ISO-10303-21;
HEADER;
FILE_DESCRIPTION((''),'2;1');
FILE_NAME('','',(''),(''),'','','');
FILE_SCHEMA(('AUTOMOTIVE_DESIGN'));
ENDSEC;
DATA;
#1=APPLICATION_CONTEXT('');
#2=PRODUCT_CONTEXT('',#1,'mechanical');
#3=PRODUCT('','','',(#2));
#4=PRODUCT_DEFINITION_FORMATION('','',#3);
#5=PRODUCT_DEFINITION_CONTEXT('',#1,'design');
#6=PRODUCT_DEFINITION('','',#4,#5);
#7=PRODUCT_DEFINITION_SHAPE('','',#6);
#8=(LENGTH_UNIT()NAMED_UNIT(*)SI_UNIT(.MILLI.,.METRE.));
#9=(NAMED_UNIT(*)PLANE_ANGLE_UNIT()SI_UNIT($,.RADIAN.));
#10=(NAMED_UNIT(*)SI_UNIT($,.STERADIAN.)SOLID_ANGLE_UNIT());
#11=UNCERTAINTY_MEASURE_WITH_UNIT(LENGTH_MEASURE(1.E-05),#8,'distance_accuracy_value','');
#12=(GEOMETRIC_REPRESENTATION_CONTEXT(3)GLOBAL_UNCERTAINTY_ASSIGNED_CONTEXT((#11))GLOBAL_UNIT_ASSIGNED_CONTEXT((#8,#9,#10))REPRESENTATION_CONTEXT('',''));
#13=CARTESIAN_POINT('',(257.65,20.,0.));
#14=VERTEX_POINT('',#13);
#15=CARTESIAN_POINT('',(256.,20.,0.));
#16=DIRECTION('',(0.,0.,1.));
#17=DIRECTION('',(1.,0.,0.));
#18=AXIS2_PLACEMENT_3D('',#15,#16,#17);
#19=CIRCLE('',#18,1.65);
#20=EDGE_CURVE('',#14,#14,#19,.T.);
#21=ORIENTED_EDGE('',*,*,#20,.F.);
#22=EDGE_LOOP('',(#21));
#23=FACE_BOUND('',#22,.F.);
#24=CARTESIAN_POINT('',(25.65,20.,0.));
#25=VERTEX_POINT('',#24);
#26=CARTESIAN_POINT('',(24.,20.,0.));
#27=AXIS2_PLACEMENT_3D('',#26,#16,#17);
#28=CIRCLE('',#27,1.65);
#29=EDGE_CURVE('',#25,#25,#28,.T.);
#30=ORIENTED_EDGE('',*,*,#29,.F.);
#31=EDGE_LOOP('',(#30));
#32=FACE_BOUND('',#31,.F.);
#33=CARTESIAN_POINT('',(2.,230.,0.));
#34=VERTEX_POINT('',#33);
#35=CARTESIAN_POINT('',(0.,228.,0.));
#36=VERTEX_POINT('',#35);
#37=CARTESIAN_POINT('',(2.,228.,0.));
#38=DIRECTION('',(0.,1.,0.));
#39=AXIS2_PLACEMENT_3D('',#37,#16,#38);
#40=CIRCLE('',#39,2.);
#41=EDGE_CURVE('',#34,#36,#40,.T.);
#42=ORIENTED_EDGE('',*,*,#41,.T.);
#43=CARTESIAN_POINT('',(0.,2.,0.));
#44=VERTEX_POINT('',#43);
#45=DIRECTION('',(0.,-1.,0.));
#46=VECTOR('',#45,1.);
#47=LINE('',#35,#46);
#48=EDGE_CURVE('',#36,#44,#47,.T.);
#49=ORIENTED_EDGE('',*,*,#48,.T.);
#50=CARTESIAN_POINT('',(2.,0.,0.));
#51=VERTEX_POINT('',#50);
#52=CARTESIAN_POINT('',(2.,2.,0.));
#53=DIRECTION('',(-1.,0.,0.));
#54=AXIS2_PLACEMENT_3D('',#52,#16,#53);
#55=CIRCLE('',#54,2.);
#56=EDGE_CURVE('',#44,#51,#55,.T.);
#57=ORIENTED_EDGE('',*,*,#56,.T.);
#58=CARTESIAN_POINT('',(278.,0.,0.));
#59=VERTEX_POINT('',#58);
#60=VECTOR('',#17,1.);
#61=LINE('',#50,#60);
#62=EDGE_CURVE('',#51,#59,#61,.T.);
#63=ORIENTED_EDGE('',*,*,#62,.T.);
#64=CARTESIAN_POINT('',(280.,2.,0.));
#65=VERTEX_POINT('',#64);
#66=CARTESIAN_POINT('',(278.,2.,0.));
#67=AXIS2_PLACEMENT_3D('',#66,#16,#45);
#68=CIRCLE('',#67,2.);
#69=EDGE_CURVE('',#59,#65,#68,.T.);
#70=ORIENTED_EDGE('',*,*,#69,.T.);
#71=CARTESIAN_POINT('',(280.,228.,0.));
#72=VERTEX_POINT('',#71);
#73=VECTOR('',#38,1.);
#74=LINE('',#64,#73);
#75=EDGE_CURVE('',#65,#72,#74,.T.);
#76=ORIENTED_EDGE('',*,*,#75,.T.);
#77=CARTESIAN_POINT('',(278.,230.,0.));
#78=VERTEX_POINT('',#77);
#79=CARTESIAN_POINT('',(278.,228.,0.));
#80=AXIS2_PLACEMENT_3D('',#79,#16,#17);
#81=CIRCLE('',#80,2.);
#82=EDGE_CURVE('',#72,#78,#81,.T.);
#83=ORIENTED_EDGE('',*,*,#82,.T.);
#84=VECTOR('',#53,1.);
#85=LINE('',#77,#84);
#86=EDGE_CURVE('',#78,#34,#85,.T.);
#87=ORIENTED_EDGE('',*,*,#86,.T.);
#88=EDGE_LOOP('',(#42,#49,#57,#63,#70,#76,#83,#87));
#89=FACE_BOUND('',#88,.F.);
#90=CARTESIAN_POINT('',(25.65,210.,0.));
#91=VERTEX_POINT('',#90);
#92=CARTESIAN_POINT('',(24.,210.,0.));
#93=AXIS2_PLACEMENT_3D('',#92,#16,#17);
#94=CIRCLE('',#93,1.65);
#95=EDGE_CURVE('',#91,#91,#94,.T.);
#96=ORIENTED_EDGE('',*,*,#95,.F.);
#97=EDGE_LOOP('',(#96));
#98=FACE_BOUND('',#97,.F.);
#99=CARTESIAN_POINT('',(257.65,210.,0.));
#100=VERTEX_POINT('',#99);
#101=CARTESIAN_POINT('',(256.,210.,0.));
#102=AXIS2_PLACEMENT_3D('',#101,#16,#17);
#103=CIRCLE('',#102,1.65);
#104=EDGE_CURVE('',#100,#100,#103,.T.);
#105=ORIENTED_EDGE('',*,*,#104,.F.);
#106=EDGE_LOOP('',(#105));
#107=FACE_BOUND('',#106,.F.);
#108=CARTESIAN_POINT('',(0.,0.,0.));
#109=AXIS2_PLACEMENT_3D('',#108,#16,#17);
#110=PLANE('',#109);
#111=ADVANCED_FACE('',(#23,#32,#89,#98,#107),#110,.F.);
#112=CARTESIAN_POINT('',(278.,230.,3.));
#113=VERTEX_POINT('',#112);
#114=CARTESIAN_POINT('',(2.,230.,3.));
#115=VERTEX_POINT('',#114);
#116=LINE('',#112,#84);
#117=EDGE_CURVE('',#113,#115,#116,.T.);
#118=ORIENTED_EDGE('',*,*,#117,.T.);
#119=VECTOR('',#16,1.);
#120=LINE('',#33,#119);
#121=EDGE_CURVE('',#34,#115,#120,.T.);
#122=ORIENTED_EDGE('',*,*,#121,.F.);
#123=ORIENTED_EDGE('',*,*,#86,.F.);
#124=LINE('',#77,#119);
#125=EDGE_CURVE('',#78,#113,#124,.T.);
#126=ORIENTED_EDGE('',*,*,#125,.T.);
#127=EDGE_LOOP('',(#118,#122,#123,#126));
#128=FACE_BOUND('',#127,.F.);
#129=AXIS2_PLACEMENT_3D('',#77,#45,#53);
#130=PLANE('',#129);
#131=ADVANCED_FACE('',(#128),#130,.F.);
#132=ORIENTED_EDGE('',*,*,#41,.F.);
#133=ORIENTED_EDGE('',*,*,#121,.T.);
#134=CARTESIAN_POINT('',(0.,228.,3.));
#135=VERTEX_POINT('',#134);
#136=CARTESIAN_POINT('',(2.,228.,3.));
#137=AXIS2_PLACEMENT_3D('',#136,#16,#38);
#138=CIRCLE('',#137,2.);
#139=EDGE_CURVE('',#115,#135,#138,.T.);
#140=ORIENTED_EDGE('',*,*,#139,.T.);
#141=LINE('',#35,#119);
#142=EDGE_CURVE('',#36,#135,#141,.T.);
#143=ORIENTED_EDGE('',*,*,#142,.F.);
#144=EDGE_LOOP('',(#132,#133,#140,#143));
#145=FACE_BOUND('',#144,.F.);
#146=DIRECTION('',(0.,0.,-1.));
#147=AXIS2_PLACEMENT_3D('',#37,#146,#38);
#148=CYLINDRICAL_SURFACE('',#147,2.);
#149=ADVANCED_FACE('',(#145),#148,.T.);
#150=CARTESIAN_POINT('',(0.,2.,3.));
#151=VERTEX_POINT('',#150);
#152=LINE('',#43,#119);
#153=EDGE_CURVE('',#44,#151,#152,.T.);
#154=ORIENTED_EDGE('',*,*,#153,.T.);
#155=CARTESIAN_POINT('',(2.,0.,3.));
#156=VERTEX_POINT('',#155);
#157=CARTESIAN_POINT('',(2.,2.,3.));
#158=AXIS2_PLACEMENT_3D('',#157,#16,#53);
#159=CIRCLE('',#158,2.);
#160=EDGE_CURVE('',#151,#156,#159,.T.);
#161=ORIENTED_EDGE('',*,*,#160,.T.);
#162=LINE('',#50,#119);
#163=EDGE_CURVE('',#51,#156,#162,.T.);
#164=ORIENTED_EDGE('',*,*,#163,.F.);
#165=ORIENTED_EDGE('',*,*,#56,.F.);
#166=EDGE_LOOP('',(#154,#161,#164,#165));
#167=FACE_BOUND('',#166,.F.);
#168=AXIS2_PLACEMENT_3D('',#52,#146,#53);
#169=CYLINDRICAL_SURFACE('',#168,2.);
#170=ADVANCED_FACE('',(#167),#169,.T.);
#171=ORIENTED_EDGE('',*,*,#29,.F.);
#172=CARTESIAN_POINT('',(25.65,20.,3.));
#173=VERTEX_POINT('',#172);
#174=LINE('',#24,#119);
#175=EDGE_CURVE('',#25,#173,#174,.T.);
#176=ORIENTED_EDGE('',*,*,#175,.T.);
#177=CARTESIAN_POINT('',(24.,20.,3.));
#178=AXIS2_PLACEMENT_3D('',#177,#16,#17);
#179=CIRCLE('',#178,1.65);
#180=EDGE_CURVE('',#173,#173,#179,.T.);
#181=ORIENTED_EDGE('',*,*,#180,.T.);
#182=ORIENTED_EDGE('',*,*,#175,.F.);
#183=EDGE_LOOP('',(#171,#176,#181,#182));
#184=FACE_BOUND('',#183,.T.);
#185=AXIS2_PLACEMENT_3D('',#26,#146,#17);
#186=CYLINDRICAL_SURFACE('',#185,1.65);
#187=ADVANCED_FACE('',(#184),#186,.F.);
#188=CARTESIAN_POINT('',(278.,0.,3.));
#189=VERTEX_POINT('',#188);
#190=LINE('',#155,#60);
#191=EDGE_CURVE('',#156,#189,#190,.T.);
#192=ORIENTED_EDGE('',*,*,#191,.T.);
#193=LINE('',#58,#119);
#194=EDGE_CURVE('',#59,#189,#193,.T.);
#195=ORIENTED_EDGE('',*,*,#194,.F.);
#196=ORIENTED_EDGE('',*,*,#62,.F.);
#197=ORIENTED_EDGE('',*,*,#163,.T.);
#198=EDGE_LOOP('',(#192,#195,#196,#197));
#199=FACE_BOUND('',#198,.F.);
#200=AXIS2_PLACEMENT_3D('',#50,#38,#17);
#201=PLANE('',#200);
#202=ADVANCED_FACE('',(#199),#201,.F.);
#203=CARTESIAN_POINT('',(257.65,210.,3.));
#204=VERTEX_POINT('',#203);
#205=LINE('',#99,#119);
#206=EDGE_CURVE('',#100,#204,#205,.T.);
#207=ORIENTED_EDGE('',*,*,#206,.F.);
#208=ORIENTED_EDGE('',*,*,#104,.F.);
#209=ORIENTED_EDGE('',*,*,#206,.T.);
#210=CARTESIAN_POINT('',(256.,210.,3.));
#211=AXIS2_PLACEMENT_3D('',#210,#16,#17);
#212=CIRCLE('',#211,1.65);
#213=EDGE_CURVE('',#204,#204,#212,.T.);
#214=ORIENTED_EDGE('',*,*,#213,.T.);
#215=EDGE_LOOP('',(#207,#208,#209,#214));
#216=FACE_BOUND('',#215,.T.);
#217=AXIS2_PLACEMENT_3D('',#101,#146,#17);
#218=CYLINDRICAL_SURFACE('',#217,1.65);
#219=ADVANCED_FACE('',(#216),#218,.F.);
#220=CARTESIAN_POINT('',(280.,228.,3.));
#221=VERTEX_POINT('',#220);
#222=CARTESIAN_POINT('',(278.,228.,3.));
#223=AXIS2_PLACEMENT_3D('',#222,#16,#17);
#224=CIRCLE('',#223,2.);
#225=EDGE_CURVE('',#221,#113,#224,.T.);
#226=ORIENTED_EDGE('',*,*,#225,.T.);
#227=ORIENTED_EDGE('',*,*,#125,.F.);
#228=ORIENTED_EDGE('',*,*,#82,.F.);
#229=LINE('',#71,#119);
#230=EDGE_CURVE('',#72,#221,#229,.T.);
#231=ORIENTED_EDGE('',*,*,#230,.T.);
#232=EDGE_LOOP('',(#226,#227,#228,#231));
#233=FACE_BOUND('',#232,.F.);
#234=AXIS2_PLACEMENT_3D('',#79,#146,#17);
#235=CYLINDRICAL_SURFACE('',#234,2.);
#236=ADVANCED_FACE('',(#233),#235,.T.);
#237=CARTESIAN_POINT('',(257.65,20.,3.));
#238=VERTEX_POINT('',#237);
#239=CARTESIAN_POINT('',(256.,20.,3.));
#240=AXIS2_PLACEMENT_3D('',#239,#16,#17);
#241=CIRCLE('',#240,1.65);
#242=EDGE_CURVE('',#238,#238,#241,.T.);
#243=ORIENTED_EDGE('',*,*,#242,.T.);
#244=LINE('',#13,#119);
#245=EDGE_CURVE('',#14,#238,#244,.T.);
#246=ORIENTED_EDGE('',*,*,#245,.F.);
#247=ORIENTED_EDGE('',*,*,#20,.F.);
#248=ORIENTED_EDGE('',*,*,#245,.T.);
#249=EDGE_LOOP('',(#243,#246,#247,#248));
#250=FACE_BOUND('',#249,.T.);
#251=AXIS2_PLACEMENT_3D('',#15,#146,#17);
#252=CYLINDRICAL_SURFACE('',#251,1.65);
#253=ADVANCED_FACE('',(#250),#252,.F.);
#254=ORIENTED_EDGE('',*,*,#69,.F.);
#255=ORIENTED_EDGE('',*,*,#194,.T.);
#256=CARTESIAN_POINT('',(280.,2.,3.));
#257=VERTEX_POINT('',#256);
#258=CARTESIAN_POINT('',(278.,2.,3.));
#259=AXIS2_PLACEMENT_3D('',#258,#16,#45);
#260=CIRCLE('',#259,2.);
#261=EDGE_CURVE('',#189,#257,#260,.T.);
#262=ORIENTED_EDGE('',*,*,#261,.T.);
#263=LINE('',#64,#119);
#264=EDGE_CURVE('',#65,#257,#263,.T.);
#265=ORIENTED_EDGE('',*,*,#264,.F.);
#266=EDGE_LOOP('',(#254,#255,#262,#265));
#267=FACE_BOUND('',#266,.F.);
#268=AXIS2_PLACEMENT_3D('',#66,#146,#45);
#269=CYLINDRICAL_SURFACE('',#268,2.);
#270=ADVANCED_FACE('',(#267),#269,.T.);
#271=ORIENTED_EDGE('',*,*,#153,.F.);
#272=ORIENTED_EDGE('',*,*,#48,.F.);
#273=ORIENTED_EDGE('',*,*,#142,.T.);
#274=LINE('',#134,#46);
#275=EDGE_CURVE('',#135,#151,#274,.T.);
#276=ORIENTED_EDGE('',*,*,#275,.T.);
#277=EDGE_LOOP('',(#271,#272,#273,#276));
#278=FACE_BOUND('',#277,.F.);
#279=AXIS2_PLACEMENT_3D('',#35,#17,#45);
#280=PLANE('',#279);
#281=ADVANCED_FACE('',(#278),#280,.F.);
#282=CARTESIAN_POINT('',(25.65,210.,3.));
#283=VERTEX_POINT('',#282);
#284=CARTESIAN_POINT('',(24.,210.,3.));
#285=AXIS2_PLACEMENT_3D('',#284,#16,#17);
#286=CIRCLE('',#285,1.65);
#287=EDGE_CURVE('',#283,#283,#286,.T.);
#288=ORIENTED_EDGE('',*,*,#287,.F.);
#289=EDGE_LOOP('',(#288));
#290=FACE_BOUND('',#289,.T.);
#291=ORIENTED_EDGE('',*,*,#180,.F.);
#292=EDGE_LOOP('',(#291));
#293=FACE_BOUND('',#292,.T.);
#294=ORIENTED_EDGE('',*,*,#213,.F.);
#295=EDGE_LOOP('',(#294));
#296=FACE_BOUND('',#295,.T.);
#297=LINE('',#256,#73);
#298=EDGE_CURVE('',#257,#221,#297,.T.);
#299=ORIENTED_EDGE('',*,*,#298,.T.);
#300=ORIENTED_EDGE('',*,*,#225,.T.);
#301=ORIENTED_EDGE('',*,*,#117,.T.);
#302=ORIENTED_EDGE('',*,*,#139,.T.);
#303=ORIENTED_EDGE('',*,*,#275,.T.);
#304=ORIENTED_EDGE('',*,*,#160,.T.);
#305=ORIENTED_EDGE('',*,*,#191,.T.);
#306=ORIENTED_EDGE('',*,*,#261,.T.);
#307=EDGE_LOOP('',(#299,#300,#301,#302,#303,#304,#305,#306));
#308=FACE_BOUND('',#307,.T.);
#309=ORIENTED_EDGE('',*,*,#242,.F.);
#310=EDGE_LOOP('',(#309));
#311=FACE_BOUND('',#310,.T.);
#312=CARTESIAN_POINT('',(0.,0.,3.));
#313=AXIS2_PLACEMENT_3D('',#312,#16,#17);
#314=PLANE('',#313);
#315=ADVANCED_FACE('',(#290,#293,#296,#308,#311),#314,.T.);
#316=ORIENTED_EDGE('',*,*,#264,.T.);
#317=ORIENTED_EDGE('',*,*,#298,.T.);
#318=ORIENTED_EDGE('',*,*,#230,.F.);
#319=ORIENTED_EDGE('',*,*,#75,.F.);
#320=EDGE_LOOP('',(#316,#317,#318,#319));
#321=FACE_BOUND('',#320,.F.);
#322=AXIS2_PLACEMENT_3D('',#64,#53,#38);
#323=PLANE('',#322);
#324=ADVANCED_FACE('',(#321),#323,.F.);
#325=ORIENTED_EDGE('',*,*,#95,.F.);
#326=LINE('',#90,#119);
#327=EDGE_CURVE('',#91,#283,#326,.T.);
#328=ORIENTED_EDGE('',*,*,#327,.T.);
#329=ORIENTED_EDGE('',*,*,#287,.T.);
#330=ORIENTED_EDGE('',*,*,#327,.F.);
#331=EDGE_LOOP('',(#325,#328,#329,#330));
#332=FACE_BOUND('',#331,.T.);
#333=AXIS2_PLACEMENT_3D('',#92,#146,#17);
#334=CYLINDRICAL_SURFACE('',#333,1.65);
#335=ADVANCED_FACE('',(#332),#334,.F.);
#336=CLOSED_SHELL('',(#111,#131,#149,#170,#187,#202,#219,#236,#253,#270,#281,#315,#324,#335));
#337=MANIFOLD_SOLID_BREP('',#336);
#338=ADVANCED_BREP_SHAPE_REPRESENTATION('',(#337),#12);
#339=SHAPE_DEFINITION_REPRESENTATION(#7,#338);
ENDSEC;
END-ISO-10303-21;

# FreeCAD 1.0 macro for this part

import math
import FreeCAD as App
import Part
import Sketcher

V = App.Vector

doc = App.newDocument("Part")
params = doc.addObject("Spreadsheet::Sheet", "Params")
for row, (alias, value) in enumerate([
    ("sketch1_radius", "2 mm"),
    ("sketch1_diameter", "3.3 mm"),
    ("pad1_length", "3 mm"),
], start=1):
    params.set(f"A{row}", alias)
    params.set(f"B{row}", "=" + value)
    params.setAlias(f"B{row}", alias)

body = doc.addObject("PartDesign::Body", "Body")

sketch1 = body.newObject("Sketcher::SketchObject", "Sketch")
sketch1.AttachmentSupport = (doc.getObject("XY_Plane"), [""])
sketch1.MapMode = "FlatFace"
sketch1.addGeometry([
    Part.ArcOfCircle(Part.Circle(V(2, 2, 0), V(0, 0, 1), 2), math.radians(180), math.radians(270)),
    Part.LineSegment(V(2, 0, 0), V(278, 0, 0)),
    Part.ArcOfCircle(Part.Circle(V(278, 2, 0), V(0, 0, 1), 2), math.radians(-90), math.radians(0)),
    Part.LineSegment(V(280, 2, 0), V(280, 228, 0)),
    Part.ArcOfCircle(Part.Circle(V(278, 228, 0), V(0, 0, 1), 2), math.radians(0), math.radians(90)),
    Part.LineSegment(V(278, 230, 0), V(2, 230, 0)),
    Part.ArcOfCircle(Part.Circle(V(2, 228, 0), V(0, 0, 1), 2), math.radians(90), math.radians(180)),
    Part.LineSegment(V(0, 228, 0), V(0, 2, 0)),
    Part.Circle(V(24, 20, 0), V(0, 0, 1), 1.6),
    Part.Circle(V(256, 20, 0), V(0, 0, 1), 1.6),
    Part.Circle(V(24, 210, 0), V(0, 0, 1), 1.6),
    Part.Circle(V(256, 210, 0), V(0, 0, 1), 1.6),
], False)
sketch1.addConstraint([
    Sketcher.Constraint("Tangent", 0, 2, 1, 1),
    Sketcher.Constraint("Tangent", 1, 2, 2, 1),
    Sketcher.Constraint("Tangent", 2, 2, 3, 1),
    Sketcher.Constraint("Tangent", 3, 2, 4, 1),
    Sketcher.Constraint("Tangent", 4, 2, 5, 1),
    Sketcher.Constraint("Tangent", 5, 2, 6, 1),
    Sketcher.Constraint("Tangent", 6, 2, 7, 1),
    Sketcher.Constraint("Tangent", 7, 2, 0, 1),
    Sketcher.Constraint("Horizontal", 1),
    Sketcher.Constraint("Vertical", 3),
    Sketcher.Constraint("Horizontal", 5),
    Sketcher.Constraint("Vertical", 7),
    Sketcher.Constraint("Equal", 0, 2),
    Sketcher.Constraint("Equal", 2, 4),
    Sketcher.Constraint("Equal", 4, 6),
    Sketcher.Constraint("Equal", 8, 9),
    Sketcher.Constraint("Equal", 9, 10),
    Sketcher.Constraint("Equal", 10, 11),
    Sketcher.Constraint("PointOnObject", 0, 2, -1),
    Sketcher.Constraint("PointOnObject", 6, 2, -2),
    Sketcher.Constraint("Horizontal", 8, 3, 9, 3),
    Sketcher.Constraint("Horizontal", 10, 3, 11, 3),
    Sketcher.Constraint("Vertical", 8, 3, 10, 3),
    Sketcher.Constraint("Vertical", 9, 3, 11, 3),
    Sketcher.Constraint("Radius", 0, 2.0),
    Sketcher.Constraint("Diameter", 8, 3.3),
    Sketcher.Constraint("DistanceX", -1, 1, 8, 3, 24.0),
    Sketcher.Constraint("DistanceY", -1, 1, 8, 3, 20.0),
    Sketcher.Constraint("DistanceX", -1, 1, 2, 2, 280.0),
    Sketcher.Constraint("DistanceY", -1, 1, 4, 2, 230.0),
    Sketcher.Constraint("DistanceX", 8, 3, 9, 3, 232.0),
    Sketcher.Constraint("DistanceY", 8, 3, 10, 3, 190.0),
])
sketch1.setExpression("Constraints[24]", "Params.sketch1_radius")
sketch1.setExpression("Constraints[25]", "Params.sketch1_diameter")
pad1 = body.newObject("PartDesign::Pad", "Pad")
pad1.Profile = sketch1
pad1.setExpression("Length", "Params.pad1_length")

doc.recompute()
